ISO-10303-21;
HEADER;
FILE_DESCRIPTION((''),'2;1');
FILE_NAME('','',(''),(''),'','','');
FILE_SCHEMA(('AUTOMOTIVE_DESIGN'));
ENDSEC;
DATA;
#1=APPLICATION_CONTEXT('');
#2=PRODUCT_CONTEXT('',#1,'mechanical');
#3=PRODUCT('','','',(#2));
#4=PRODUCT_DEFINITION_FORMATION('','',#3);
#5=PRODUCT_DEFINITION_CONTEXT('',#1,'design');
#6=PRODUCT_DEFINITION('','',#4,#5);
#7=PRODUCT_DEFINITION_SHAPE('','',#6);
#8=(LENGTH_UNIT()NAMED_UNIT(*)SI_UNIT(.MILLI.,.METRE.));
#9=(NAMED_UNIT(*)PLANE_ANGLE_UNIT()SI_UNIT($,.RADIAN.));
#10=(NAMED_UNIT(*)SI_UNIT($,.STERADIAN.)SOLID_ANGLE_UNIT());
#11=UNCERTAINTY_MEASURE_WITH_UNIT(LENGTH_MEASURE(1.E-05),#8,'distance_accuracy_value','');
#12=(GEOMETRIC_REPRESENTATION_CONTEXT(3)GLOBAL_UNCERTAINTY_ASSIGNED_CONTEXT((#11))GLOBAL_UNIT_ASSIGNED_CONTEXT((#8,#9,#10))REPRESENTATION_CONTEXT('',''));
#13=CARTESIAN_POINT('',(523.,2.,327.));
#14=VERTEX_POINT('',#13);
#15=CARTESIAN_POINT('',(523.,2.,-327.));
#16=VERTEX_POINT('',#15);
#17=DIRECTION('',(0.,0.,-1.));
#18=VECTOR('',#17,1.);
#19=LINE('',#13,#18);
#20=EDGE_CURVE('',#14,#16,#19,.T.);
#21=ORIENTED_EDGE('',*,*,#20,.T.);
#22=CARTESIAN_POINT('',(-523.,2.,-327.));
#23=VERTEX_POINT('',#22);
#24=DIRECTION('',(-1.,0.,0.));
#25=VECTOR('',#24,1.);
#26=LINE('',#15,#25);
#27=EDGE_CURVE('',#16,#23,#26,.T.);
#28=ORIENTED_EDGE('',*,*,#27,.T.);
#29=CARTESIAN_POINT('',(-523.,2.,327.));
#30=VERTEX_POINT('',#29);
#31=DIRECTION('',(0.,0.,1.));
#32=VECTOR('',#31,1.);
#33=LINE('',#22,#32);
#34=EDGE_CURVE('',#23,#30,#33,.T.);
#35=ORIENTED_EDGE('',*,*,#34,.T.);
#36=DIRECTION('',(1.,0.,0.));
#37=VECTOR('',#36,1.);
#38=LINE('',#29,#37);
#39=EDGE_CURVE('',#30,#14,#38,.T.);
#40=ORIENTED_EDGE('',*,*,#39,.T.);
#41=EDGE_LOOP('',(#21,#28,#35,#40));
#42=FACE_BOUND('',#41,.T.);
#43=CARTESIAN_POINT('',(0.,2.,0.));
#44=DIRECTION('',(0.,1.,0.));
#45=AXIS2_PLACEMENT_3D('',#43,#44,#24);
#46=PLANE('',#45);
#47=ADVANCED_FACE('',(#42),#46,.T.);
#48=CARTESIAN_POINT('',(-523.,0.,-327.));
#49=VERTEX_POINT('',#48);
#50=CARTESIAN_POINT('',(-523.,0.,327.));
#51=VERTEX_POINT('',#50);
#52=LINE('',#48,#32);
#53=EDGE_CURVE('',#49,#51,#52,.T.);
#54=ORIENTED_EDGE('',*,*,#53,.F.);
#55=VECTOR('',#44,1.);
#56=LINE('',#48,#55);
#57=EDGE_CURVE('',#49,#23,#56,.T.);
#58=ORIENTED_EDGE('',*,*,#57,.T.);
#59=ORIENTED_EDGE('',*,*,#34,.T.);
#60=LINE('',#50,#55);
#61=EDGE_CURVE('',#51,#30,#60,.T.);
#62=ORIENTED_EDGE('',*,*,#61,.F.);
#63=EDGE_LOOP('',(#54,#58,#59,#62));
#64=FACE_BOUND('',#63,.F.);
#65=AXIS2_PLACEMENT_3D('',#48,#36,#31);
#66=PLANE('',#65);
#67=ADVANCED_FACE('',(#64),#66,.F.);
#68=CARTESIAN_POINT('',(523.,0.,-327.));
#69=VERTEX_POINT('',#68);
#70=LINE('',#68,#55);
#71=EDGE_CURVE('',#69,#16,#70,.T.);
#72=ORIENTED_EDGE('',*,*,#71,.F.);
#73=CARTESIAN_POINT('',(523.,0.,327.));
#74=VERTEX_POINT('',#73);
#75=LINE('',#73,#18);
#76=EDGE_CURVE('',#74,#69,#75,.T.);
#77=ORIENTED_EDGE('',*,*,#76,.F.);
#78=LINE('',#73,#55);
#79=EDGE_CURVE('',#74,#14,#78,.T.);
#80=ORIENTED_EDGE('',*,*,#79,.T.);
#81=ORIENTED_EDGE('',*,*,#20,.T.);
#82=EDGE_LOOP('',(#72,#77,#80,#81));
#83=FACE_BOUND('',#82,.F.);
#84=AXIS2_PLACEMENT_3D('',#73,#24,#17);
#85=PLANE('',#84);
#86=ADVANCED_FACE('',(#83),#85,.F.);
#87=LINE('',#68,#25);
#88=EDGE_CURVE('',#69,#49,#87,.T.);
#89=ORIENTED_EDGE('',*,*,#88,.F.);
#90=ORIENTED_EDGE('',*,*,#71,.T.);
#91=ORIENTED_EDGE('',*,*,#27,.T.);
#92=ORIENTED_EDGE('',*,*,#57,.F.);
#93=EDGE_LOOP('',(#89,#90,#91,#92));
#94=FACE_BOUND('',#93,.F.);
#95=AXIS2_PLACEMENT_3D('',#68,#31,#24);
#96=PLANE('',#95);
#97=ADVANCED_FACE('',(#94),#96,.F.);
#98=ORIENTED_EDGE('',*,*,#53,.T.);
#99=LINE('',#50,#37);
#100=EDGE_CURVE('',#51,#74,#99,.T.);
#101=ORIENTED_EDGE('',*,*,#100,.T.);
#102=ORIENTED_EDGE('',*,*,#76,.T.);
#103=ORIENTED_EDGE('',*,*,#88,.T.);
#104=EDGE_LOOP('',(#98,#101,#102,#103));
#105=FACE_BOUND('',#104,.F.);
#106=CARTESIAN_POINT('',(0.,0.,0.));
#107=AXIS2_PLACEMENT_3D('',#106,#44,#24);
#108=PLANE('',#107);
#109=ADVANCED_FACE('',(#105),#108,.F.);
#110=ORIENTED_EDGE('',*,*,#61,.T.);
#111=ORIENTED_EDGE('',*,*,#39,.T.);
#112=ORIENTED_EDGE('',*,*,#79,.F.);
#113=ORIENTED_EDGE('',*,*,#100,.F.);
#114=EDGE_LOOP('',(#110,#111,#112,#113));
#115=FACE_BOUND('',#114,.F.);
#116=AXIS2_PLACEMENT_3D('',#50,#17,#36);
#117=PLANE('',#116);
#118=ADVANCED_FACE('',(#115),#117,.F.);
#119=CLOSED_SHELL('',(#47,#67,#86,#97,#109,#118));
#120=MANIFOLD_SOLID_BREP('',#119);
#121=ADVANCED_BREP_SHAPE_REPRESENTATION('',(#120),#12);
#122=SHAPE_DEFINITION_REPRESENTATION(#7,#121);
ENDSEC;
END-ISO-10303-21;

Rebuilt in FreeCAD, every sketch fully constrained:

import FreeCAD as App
import Part
import Sketcher

doc = App.newDocument("Part")
body = doc.addObject("PartDesign::Body", "Body")

sketch1 = body.newObject("Sketcher::SketchObject", "Sketch")
sketch1.AttachmentSupport = (doc.getObject("XZ_Plane"), [""])
sketch1.MapMode = "FlatFace"
sketch1.addGeometry(Part.LineSegment(App.Vector(-523, -327, 0), App.Vector(-523, 327, 0)), False)
sketch1.addGeometry(Part.LineSegment(App.Vector(-523, 327, 0), App.Vector(523, 327, 0)), False)
sketch1.addGeometry(Part.LineSegment(App.Vector(523, 327, 0), App.Vector(523, -327, 0)), False)
sketch1.addGeometry(Part.LineSegment(App.Vector(523, -327, 0), App.Vector(-523, -327, 0)), False)
sketch1.addConstraint(Sketcher.Constraint("Coincident", 0, 2, 1, 1))
sketch1.addConstraint(Sketcher.Constraint("Coincident", 1, 2, 2, 1))
sketch1.addConstraint(Sketcher.Constraint("Coincident", 2, 2, 3, 1))
sketch1.addConstraint(Sketcher.Constraint("Coincident", 3, 2, 0, 1))
sketch1.addConstraint(Sketcher.Constraint("Vertical", 0))
sketch1.addConstraint(Sketcher.Constraint("Horizontal", 1))
sketch1.addConstraint(Sketcher.Constraint("Vertical", 2))
sketch1.addConstraint(Sketcher.Constraint("Horizontal", 3))
sketch1.addConstraint(Sketcher.Constraint("Symmetric", 0, 2, 2, 2, -1, 1))
sketch1.addConstraint(Sketcher.Constraint("DistanceX", 1, 1, 1, 2, 1046.0))
sketch1.addConstraint(Sketcher.Constraint("DistanceY", 0, 1, 0, 2, 654.0))
pad1 = body.newObject("PartDesign::Pad", "Pad")
pad1.Profile = sketch1
pad1.Length = 2
pad1.Reversed = True

doc.recompute()
